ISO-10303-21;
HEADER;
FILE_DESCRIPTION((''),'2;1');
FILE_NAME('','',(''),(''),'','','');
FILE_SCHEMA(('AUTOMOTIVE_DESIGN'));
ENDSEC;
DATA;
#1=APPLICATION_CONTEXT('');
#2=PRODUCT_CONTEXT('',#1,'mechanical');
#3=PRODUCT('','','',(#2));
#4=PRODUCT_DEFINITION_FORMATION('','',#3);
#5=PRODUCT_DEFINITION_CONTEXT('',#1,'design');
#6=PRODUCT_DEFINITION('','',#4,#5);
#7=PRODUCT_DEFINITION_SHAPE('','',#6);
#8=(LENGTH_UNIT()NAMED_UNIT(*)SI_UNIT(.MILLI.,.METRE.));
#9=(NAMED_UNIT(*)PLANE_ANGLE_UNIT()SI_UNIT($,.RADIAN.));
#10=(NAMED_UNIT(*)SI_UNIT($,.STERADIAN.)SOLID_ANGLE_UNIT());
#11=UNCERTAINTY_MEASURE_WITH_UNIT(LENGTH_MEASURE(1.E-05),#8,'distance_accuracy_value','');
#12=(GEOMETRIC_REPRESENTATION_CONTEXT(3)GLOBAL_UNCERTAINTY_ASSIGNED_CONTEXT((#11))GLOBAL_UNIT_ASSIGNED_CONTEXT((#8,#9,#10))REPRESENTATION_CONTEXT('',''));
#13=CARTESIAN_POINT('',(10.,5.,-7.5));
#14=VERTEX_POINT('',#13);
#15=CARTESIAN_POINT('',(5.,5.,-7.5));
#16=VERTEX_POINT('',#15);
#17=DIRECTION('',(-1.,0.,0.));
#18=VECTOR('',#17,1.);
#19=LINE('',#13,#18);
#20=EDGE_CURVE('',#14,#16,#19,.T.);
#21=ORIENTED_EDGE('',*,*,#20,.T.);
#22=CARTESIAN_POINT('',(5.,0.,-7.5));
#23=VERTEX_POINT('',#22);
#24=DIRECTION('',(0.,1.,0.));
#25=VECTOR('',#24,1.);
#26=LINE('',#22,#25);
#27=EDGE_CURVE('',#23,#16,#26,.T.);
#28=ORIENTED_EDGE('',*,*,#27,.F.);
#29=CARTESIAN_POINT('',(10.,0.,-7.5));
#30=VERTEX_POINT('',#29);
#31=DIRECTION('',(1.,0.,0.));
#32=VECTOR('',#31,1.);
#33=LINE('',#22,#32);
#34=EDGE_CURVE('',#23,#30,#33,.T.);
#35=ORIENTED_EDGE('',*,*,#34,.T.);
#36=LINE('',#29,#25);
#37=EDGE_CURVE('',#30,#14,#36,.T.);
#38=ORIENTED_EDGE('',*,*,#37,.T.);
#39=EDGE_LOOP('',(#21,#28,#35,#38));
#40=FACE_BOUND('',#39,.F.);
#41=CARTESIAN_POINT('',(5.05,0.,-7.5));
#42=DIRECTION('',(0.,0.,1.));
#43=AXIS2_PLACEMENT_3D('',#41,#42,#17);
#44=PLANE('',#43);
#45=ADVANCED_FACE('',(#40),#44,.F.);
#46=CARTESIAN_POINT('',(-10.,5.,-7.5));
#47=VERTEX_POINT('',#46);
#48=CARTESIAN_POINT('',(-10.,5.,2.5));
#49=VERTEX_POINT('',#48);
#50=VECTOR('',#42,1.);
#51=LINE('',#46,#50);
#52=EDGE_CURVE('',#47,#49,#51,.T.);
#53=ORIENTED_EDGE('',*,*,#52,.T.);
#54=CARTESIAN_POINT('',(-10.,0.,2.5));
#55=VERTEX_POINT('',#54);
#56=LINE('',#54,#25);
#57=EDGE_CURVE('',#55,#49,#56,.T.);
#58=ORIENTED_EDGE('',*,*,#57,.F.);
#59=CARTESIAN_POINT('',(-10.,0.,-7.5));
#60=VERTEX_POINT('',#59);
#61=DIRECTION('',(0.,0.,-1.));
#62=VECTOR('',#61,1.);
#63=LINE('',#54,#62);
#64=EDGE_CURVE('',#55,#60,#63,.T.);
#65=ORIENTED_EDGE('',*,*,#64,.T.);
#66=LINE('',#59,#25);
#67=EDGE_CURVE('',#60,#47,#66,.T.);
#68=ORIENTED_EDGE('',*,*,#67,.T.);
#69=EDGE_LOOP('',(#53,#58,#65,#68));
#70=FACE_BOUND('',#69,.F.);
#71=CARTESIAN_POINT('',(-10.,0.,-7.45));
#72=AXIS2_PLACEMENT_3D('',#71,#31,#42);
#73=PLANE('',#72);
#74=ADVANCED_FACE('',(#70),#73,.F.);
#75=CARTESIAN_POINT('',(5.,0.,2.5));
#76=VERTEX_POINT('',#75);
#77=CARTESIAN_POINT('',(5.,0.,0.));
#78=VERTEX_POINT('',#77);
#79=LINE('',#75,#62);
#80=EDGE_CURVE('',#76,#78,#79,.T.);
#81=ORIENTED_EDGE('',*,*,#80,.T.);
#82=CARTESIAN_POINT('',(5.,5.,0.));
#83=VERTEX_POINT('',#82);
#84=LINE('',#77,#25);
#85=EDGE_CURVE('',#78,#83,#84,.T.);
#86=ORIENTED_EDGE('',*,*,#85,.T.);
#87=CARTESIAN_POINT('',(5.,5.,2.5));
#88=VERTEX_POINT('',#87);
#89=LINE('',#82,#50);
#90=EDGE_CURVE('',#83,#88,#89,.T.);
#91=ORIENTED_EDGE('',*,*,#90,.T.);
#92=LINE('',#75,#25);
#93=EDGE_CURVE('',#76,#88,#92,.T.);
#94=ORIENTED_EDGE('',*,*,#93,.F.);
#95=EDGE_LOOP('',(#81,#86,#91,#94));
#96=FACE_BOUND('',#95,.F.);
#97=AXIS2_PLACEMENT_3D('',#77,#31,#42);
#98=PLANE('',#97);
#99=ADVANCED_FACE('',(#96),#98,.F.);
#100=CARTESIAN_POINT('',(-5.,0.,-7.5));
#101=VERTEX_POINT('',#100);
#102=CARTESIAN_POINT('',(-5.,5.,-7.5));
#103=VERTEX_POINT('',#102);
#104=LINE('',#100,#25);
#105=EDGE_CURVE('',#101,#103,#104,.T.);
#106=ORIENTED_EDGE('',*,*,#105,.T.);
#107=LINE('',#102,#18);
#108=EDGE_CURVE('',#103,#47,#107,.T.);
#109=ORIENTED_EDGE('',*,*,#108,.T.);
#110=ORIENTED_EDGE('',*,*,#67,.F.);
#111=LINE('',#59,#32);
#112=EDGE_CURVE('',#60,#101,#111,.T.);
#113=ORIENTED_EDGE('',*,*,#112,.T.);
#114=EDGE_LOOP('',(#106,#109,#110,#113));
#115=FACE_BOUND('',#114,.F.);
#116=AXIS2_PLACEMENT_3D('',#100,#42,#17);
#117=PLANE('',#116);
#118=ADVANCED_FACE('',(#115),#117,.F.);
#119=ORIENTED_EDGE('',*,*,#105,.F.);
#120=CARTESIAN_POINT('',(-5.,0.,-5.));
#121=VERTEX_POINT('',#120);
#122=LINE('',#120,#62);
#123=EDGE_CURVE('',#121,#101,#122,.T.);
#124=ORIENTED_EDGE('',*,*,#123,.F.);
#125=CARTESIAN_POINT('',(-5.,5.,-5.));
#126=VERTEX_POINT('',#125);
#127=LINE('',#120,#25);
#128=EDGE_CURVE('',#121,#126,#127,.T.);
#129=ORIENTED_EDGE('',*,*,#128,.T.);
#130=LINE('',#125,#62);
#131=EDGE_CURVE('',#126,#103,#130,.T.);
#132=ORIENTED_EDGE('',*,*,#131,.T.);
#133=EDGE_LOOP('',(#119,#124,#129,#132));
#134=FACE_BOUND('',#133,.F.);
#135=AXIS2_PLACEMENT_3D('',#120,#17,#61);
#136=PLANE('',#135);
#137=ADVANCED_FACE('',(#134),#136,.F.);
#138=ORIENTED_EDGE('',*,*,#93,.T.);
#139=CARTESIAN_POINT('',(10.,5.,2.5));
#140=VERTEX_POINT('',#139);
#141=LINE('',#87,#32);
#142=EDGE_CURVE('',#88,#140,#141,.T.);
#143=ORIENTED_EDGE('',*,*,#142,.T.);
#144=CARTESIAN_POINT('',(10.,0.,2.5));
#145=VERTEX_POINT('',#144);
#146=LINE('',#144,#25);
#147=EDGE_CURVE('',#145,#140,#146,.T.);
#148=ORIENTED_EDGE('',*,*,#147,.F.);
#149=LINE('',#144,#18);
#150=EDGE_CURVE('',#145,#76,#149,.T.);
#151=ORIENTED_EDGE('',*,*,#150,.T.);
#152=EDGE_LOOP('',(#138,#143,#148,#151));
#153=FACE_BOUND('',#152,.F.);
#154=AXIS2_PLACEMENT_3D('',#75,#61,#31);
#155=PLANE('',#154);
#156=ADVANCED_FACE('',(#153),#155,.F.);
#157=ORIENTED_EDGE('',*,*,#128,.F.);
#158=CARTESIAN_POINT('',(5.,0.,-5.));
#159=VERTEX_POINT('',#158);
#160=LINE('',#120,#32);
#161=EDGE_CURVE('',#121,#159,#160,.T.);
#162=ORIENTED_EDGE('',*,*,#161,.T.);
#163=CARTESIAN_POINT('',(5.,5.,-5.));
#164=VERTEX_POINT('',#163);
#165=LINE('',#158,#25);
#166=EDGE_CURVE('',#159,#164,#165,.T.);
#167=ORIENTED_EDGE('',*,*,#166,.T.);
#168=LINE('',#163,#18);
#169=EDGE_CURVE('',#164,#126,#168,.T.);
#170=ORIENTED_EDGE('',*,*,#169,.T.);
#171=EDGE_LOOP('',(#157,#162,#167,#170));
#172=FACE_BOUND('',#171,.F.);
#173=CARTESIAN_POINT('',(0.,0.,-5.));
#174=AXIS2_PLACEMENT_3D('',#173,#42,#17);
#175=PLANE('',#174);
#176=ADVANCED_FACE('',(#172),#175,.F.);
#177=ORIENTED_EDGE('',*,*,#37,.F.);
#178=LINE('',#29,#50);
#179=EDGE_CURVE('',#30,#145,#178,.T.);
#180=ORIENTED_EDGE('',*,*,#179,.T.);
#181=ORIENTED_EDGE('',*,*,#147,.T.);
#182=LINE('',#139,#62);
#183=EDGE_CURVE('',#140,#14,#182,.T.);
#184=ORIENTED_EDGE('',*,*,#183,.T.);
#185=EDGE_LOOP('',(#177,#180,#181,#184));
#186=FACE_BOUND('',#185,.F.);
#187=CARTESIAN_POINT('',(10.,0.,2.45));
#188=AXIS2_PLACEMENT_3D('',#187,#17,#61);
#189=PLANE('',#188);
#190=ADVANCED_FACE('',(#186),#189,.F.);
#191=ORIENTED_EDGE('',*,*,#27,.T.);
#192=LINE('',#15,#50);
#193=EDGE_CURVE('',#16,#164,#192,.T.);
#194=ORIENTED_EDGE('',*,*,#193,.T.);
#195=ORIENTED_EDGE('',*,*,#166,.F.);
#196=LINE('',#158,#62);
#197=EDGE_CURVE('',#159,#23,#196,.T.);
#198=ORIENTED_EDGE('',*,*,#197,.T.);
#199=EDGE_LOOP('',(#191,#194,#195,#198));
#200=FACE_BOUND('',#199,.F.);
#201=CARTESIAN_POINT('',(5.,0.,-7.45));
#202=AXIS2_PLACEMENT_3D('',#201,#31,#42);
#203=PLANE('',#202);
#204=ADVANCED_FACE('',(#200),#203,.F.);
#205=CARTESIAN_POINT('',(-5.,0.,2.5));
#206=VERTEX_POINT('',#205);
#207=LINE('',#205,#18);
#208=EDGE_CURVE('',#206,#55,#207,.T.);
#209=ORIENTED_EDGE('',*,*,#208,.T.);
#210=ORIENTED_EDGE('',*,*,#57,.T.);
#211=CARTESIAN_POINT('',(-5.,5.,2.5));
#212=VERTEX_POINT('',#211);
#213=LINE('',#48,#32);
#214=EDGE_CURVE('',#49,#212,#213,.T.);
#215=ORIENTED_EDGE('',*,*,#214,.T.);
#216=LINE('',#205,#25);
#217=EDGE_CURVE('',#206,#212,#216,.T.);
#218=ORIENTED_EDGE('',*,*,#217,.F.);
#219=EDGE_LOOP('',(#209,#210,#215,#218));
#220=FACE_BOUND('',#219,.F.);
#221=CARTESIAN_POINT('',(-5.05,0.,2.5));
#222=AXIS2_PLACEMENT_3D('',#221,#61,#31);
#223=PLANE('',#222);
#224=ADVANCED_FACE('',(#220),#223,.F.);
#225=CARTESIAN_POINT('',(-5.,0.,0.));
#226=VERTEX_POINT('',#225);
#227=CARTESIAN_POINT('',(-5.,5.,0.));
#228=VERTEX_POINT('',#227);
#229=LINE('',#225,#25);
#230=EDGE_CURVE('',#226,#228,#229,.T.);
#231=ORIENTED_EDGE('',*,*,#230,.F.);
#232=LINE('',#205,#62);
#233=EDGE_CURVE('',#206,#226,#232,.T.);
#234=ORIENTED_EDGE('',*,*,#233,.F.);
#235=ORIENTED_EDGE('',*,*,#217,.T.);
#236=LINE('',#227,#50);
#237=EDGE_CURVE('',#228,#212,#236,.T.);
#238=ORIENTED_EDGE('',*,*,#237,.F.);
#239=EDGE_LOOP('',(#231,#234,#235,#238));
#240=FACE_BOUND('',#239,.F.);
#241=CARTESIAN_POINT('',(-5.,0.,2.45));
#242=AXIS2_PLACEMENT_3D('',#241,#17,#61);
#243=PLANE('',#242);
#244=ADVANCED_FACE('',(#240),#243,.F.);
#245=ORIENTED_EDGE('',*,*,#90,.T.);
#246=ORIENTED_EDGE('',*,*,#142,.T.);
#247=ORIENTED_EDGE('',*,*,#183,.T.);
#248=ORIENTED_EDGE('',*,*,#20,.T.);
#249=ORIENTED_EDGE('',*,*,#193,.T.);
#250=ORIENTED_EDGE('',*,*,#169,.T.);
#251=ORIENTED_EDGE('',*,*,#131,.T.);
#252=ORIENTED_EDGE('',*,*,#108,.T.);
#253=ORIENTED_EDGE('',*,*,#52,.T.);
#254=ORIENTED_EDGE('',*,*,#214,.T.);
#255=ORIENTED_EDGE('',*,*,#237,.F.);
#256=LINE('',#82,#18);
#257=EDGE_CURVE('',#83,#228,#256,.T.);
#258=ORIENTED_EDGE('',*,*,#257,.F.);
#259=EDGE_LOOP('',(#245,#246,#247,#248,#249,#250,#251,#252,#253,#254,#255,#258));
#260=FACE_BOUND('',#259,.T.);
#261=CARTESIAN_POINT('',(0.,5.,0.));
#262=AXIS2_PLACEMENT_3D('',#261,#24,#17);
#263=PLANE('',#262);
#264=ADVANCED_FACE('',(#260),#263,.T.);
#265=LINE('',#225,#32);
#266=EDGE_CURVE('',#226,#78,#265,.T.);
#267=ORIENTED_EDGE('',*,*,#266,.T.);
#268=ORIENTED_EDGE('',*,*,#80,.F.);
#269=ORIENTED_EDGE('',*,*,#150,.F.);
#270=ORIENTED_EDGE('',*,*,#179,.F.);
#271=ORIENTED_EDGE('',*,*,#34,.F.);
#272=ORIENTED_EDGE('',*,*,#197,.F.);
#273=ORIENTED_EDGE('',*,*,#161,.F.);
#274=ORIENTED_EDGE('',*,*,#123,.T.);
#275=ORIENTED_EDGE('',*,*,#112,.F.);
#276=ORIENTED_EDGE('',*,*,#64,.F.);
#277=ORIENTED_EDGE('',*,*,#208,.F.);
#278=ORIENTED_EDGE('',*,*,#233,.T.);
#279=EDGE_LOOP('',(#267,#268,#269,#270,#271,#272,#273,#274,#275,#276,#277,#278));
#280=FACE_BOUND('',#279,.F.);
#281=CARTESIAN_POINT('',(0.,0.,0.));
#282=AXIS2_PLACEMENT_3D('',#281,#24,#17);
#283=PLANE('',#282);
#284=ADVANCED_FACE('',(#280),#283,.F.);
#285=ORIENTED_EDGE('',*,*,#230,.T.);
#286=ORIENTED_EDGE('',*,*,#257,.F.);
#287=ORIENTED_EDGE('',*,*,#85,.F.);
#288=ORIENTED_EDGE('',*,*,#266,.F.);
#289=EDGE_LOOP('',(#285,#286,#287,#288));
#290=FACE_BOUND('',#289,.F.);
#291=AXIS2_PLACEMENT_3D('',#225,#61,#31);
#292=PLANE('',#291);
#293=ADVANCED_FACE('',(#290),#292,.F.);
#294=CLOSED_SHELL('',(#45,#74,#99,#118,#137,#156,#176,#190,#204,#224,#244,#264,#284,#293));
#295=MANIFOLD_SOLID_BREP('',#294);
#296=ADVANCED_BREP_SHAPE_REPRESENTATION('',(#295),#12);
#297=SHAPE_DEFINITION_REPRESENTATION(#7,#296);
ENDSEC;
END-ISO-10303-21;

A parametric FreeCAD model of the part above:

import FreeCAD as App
import Part
import Sketcher
from FreeCAD import Vector
Q = App.Units.Quantity


def add_polygon(sketch, points):
    """Adds a closed chain of lines whose ends are joined by coincident constraints."""
    first, n = sketch.GeometryCount, len(points)
    for a, b in zip(points, points[1:] + points[:1]):
        sketch.addGeometry(Part.LineSegment(App.Vector(*a, 0), App.Vector(*b, 0)), False)
    for i in range(n):
        sketch.addConstraint(Sketcher.Constraint("Coincident", first + i, 2, first + (i + 1) % n, 1))

doc = App.newDocument("Part")
body = doc.addObject("PartDesign::Body", "Body")

# Sketch on XZ plane
sketch1 = body.newObject("Sketcher::SketchObject", "Sketch")
sketch1.AttachmentSupport = (doc.getObject("XZ_Plane"), [""])
sketch1.MapMode = "FlatFace"
add_polygon(sketch1, [(-5, 0), (5, 0), (5, 2.5), (10, 2.5), (10, -7.5), (5, -7.5), (5, -5), (-5, -5), (-5, -7.5), (-10, -7.5), (-10, 2.5), (-5, 2.5)])  # lines 0-11
sketch1.addConstraint([
    Sketcher.Constraint("Horizontal", 0),
    Sketcher.Constraint("Vertical", 1),
    Sketcher.Constraint("Horizontal", 2),
    Sketcher.Constraint("Vertical", 3),
    Sketcher.Constraint("Horizontal", 4),
    Sketcher.Constraint("Vertical", 5),
    Sketcher.Constraint("Horizontal", 6),
    Sketcher.Constraint("Vertical", 7),
    Sketcher.Constraint("Horizontal", 8),
    Sketcher.Constraint("Vertical", 9),
    Sketcher.Constraint("Horizontal", 10),
    Sketcher.Constraint("Vertical", 11),
    Sketcher.Constraint("Symmetric", 0, 2, 11, 2, -1, 1),
    Sketcher.Constraint("Symmetric", 4, 2, 7, 2, -2),
    Sketcher.Constraint("Symmetric", 2, 2, 9, 2, -2),
    Sketcher.Constraint("Vertical", 1, 2, 4, 2),
    Sketcher.Constraint("Equal", 6, 3),
    Sketcher.Constraint("Equal", 1, 5),
    Sketcher.Constraint("DistanceX", 0, 1, 0, 2, Q("10 mm")),
    Sketcher.Constraint("DistanceX", 2, 1, 2, 2, Q("5 mm")),
    Sketcher.Constraint("DistanceY", 1, 1, 1, 2, Q("2.5 mm")),
])
pad1 = body.newObject("PartDesign::Pad", "Pad")
pad1.Profile = sketch1
pad1.Length = 5
pad1.Reversed = True

doc.recompute()
